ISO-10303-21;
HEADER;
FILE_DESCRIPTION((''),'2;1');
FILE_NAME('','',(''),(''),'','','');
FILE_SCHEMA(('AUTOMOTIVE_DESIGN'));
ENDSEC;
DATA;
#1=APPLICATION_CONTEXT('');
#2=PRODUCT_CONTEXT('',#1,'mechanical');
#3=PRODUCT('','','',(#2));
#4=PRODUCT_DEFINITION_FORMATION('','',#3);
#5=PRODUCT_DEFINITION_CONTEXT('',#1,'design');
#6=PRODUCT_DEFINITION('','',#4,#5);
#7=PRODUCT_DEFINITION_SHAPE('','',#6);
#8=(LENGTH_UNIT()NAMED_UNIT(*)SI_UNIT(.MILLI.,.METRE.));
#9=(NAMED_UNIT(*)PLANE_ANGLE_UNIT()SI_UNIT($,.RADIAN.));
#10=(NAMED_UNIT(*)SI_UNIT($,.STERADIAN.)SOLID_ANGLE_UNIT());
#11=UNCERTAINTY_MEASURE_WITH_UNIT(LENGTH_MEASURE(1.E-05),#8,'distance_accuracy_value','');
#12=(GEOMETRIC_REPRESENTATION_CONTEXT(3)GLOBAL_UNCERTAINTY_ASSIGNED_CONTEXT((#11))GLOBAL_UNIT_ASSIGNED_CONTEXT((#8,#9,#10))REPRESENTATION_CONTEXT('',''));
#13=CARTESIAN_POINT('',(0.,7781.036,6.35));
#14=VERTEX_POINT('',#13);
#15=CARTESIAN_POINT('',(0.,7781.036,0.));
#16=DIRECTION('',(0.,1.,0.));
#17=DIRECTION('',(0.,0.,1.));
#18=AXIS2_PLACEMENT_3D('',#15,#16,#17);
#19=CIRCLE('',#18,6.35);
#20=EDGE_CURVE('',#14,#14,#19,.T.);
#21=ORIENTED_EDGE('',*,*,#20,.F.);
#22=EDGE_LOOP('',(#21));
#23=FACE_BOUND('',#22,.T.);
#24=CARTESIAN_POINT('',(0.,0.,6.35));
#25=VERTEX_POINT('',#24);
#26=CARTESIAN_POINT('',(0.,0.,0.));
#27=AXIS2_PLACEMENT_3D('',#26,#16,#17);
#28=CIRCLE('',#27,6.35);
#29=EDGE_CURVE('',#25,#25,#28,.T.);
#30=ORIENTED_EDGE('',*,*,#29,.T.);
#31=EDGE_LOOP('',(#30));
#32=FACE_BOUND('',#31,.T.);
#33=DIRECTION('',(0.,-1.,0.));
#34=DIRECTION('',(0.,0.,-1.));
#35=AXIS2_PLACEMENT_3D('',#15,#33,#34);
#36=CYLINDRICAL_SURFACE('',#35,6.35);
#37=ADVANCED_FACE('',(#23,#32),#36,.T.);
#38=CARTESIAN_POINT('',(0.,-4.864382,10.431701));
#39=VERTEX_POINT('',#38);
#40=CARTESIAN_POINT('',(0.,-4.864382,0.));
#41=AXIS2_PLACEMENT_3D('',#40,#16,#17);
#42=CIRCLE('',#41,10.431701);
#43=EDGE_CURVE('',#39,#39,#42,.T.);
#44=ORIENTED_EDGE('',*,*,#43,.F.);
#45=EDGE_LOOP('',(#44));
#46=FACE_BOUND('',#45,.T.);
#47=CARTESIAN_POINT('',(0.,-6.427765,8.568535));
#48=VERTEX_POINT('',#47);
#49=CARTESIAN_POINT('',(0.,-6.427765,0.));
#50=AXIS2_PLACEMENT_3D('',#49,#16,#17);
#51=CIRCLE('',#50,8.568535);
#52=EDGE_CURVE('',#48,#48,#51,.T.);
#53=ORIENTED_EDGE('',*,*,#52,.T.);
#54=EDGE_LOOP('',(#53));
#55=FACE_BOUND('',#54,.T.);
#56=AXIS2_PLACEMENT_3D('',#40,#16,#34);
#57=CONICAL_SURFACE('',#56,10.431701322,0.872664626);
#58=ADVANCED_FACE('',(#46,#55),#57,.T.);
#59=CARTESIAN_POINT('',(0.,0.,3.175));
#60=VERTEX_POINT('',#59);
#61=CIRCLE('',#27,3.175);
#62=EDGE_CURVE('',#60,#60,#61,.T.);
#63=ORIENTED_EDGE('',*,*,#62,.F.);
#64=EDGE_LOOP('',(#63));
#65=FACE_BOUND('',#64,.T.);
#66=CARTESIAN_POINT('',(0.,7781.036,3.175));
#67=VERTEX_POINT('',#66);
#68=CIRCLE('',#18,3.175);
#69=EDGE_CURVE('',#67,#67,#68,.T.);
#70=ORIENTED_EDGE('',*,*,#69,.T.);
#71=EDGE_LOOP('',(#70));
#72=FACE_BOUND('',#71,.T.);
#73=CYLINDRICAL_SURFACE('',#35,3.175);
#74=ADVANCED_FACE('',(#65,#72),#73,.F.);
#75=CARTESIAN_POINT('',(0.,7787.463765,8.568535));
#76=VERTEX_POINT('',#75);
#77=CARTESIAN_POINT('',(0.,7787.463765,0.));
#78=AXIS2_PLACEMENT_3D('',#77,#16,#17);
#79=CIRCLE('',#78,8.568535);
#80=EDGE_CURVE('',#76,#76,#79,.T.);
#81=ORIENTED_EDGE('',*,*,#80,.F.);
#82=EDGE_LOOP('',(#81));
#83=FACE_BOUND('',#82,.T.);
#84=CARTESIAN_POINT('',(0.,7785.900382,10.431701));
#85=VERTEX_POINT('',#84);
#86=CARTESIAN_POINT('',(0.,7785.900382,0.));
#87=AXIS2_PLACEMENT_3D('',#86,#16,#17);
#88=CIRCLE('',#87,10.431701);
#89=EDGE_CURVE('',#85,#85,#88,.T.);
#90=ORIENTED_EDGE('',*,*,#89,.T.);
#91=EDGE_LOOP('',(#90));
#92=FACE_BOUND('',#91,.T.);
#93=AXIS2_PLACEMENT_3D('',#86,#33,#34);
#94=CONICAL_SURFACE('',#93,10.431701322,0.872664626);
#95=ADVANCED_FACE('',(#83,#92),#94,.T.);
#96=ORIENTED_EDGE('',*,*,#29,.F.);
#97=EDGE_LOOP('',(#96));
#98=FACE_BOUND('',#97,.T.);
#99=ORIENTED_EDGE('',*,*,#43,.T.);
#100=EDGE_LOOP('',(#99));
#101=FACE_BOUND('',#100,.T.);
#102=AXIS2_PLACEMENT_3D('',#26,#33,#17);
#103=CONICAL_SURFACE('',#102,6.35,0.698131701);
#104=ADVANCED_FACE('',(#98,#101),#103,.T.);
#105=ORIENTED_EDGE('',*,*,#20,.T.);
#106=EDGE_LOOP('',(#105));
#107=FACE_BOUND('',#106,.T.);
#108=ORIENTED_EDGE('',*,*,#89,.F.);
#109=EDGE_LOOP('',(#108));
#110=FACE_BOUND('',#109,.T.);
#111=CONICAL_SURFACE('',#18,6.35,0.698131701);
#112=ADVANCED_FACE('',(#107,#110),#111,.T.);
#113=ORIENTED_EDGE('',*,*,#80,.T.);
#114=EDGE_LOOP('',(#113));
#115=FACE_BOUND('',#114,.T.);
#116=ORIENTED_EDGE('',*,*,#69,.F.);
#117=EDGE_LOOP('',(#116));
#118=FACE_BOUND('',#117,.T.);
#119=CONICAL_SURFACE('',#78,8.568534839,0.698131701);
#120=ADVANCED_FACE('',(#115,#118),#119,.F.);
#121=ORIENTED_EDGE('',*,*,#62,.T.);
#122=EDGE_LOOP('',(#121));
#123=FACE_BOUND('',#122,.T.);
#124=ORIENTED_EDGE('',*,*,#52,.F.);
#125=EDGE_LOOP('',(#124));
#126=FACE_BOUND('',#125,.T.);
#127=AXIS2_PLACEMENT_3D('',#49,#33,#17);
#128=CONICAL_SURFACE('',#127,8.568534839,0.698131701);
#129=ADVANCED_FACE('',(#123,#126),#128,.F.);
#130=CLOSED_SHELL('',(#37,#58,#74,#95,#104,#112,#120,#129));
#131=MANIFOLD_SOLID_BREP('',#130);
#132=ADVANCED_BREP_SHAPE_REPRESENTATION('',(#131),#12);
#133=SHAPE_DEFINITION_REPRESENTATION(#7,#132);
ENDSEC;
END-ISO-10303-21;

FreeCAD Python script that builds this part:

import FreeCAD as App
import Part
import Sketcher
from FreeCAD import Vector
Q = App.Units.Quantity

doc = App.newDocument("Part")
body = doc.addObject("PartDesign::Body", "Body")

# Sketch on XZ plane
sketch1 = body.newObject("Sketcher::SketchObject", "Sketch")
sketch1.AttachmentSupport = (doc.getObject("XZ_Plane"), [""])
sketch1.MapMode = "FlatFace"
sketch1.addGeometry(Part.Circle(Vector(0, 0, 0), Vector(0, 0, 1), 6.3), False)
sketch1.addGeometry(Part.Circle(Vector(0, 0, 0), Vector(0, 0, 1), 3.2), False)
sketch1.addConstraint(Sketcher.Constraint("Coincident", 0, 3, -1, 1))
sketch1.addConstraint(Sketcher.Constraint("Coincident", 1, 3, -1, 1))
sketch1.addConstraint(Sketcher.Constraint("Diameter", 0, Q("0.5 in")))
sketch1.addConstraint(Sketcher.Constraint("Diameter", 1, Q("0.25 in")))
pad1 = body.newObject("PartDesign::Pad", "Pad")
pad1.Profile = sketch1
pad1.Length = Q("306.34 in")
pad1.Reversed = True

# Sketch on YZ plane
sketch2 = body.newObject("Sketcher::SketchObject", "Sketch001")
sketch2.AttachmentSupport = (doc.getObject("YZ_Plane"), [""])
sketch2.MapMode = "FlatFace"
sketch2.addGeometry(Part.LineSegment(Vector(7781, -6.3, 0), Vector(7785.9, -10.4, 0)), False)
sketch2.addGeometry(Part.LineSegment(Vector(7785.9, -10.4, 0), Vector(7787.5, -8.6, 0)), False)
sketch2.addGeometry(Part.LineSegment(Vector(7787.5, -8.6, 0), Vector(7781, -3.2, 0)), False)
sketch2.addGeometry(Part.LineSegment(Vector(7781, -3.2, 0), Vector(7781, -6.3, 0)), False)
sketch2.addConstraint(Sketcher.Constraint("Coincident", 0, 2, 1, 1))
sketch2.addConstraint(Sketcher.Constraint("Coincident", 1, 2, 2, 1))
sketch2.addConstraint(Sketcher.Constraint("Coincident", 2, 2, 3, 1))
sketch2.addConstraint(Sketcher.Constraint("Coincident", 3, 2, 0, 1))
sketch2.addConstraint(Sketcher.Constraint("Vertical", 3))
sketch2.addConstraint(Sketcher.Constraint("Perpendicular", 0, 1))
sketch2.addConstraint(Sketcher.Constraint("Perpendicular", 1, 2))
sketch2.addConstraint(Sketcher.Constraint("Angle", 0, Q("-40 deg")))
sketch2.addConstraint(Sketcher.Constraint("Distance", 0, Q("0.25 in")))
sketch2.addConstraint(Sketcher.Constraint("DistanceY", 3, 2, 3, 1, Q("0.125 in")))
sketch2.addConstraint(Sketcher.Constraint("DistanceX", -1, 1, 2, 2, Q("306.34 in")))
sketch2.addConstraint(Sketcher.Constraint("DistanceY", 3, 2, -1, 1, Q("0.25 in")))
revolution = body.newObject("PartDesign::Revolution", "Revolution")
revolution.Profile = sketch2
revolution.ReferenceAxis = (sketch2, ["H_Axis"])
revolution.Angle = 360
doc.recompute()

datumplane = body.newObject("PartDesign::Plane", "DatumPlane")
datumplane.AttachmentSupport = (doc.getObject("XZ_Plane"), [""])
datumplane.MapMode = "FlatFace"
datumplane.AttachmentOffset = App.Placement(Vector(0, 0, -153.17 * 25.4), App.Rotation())
mirrored = body.newObject("PartDesign::Mirrored", "Mirrored")
mirrored.Originals = [revolution]
mirrored.MirrorPlane = (datumplane, [""])
body.Tip = mirrored

doc.recompute()
